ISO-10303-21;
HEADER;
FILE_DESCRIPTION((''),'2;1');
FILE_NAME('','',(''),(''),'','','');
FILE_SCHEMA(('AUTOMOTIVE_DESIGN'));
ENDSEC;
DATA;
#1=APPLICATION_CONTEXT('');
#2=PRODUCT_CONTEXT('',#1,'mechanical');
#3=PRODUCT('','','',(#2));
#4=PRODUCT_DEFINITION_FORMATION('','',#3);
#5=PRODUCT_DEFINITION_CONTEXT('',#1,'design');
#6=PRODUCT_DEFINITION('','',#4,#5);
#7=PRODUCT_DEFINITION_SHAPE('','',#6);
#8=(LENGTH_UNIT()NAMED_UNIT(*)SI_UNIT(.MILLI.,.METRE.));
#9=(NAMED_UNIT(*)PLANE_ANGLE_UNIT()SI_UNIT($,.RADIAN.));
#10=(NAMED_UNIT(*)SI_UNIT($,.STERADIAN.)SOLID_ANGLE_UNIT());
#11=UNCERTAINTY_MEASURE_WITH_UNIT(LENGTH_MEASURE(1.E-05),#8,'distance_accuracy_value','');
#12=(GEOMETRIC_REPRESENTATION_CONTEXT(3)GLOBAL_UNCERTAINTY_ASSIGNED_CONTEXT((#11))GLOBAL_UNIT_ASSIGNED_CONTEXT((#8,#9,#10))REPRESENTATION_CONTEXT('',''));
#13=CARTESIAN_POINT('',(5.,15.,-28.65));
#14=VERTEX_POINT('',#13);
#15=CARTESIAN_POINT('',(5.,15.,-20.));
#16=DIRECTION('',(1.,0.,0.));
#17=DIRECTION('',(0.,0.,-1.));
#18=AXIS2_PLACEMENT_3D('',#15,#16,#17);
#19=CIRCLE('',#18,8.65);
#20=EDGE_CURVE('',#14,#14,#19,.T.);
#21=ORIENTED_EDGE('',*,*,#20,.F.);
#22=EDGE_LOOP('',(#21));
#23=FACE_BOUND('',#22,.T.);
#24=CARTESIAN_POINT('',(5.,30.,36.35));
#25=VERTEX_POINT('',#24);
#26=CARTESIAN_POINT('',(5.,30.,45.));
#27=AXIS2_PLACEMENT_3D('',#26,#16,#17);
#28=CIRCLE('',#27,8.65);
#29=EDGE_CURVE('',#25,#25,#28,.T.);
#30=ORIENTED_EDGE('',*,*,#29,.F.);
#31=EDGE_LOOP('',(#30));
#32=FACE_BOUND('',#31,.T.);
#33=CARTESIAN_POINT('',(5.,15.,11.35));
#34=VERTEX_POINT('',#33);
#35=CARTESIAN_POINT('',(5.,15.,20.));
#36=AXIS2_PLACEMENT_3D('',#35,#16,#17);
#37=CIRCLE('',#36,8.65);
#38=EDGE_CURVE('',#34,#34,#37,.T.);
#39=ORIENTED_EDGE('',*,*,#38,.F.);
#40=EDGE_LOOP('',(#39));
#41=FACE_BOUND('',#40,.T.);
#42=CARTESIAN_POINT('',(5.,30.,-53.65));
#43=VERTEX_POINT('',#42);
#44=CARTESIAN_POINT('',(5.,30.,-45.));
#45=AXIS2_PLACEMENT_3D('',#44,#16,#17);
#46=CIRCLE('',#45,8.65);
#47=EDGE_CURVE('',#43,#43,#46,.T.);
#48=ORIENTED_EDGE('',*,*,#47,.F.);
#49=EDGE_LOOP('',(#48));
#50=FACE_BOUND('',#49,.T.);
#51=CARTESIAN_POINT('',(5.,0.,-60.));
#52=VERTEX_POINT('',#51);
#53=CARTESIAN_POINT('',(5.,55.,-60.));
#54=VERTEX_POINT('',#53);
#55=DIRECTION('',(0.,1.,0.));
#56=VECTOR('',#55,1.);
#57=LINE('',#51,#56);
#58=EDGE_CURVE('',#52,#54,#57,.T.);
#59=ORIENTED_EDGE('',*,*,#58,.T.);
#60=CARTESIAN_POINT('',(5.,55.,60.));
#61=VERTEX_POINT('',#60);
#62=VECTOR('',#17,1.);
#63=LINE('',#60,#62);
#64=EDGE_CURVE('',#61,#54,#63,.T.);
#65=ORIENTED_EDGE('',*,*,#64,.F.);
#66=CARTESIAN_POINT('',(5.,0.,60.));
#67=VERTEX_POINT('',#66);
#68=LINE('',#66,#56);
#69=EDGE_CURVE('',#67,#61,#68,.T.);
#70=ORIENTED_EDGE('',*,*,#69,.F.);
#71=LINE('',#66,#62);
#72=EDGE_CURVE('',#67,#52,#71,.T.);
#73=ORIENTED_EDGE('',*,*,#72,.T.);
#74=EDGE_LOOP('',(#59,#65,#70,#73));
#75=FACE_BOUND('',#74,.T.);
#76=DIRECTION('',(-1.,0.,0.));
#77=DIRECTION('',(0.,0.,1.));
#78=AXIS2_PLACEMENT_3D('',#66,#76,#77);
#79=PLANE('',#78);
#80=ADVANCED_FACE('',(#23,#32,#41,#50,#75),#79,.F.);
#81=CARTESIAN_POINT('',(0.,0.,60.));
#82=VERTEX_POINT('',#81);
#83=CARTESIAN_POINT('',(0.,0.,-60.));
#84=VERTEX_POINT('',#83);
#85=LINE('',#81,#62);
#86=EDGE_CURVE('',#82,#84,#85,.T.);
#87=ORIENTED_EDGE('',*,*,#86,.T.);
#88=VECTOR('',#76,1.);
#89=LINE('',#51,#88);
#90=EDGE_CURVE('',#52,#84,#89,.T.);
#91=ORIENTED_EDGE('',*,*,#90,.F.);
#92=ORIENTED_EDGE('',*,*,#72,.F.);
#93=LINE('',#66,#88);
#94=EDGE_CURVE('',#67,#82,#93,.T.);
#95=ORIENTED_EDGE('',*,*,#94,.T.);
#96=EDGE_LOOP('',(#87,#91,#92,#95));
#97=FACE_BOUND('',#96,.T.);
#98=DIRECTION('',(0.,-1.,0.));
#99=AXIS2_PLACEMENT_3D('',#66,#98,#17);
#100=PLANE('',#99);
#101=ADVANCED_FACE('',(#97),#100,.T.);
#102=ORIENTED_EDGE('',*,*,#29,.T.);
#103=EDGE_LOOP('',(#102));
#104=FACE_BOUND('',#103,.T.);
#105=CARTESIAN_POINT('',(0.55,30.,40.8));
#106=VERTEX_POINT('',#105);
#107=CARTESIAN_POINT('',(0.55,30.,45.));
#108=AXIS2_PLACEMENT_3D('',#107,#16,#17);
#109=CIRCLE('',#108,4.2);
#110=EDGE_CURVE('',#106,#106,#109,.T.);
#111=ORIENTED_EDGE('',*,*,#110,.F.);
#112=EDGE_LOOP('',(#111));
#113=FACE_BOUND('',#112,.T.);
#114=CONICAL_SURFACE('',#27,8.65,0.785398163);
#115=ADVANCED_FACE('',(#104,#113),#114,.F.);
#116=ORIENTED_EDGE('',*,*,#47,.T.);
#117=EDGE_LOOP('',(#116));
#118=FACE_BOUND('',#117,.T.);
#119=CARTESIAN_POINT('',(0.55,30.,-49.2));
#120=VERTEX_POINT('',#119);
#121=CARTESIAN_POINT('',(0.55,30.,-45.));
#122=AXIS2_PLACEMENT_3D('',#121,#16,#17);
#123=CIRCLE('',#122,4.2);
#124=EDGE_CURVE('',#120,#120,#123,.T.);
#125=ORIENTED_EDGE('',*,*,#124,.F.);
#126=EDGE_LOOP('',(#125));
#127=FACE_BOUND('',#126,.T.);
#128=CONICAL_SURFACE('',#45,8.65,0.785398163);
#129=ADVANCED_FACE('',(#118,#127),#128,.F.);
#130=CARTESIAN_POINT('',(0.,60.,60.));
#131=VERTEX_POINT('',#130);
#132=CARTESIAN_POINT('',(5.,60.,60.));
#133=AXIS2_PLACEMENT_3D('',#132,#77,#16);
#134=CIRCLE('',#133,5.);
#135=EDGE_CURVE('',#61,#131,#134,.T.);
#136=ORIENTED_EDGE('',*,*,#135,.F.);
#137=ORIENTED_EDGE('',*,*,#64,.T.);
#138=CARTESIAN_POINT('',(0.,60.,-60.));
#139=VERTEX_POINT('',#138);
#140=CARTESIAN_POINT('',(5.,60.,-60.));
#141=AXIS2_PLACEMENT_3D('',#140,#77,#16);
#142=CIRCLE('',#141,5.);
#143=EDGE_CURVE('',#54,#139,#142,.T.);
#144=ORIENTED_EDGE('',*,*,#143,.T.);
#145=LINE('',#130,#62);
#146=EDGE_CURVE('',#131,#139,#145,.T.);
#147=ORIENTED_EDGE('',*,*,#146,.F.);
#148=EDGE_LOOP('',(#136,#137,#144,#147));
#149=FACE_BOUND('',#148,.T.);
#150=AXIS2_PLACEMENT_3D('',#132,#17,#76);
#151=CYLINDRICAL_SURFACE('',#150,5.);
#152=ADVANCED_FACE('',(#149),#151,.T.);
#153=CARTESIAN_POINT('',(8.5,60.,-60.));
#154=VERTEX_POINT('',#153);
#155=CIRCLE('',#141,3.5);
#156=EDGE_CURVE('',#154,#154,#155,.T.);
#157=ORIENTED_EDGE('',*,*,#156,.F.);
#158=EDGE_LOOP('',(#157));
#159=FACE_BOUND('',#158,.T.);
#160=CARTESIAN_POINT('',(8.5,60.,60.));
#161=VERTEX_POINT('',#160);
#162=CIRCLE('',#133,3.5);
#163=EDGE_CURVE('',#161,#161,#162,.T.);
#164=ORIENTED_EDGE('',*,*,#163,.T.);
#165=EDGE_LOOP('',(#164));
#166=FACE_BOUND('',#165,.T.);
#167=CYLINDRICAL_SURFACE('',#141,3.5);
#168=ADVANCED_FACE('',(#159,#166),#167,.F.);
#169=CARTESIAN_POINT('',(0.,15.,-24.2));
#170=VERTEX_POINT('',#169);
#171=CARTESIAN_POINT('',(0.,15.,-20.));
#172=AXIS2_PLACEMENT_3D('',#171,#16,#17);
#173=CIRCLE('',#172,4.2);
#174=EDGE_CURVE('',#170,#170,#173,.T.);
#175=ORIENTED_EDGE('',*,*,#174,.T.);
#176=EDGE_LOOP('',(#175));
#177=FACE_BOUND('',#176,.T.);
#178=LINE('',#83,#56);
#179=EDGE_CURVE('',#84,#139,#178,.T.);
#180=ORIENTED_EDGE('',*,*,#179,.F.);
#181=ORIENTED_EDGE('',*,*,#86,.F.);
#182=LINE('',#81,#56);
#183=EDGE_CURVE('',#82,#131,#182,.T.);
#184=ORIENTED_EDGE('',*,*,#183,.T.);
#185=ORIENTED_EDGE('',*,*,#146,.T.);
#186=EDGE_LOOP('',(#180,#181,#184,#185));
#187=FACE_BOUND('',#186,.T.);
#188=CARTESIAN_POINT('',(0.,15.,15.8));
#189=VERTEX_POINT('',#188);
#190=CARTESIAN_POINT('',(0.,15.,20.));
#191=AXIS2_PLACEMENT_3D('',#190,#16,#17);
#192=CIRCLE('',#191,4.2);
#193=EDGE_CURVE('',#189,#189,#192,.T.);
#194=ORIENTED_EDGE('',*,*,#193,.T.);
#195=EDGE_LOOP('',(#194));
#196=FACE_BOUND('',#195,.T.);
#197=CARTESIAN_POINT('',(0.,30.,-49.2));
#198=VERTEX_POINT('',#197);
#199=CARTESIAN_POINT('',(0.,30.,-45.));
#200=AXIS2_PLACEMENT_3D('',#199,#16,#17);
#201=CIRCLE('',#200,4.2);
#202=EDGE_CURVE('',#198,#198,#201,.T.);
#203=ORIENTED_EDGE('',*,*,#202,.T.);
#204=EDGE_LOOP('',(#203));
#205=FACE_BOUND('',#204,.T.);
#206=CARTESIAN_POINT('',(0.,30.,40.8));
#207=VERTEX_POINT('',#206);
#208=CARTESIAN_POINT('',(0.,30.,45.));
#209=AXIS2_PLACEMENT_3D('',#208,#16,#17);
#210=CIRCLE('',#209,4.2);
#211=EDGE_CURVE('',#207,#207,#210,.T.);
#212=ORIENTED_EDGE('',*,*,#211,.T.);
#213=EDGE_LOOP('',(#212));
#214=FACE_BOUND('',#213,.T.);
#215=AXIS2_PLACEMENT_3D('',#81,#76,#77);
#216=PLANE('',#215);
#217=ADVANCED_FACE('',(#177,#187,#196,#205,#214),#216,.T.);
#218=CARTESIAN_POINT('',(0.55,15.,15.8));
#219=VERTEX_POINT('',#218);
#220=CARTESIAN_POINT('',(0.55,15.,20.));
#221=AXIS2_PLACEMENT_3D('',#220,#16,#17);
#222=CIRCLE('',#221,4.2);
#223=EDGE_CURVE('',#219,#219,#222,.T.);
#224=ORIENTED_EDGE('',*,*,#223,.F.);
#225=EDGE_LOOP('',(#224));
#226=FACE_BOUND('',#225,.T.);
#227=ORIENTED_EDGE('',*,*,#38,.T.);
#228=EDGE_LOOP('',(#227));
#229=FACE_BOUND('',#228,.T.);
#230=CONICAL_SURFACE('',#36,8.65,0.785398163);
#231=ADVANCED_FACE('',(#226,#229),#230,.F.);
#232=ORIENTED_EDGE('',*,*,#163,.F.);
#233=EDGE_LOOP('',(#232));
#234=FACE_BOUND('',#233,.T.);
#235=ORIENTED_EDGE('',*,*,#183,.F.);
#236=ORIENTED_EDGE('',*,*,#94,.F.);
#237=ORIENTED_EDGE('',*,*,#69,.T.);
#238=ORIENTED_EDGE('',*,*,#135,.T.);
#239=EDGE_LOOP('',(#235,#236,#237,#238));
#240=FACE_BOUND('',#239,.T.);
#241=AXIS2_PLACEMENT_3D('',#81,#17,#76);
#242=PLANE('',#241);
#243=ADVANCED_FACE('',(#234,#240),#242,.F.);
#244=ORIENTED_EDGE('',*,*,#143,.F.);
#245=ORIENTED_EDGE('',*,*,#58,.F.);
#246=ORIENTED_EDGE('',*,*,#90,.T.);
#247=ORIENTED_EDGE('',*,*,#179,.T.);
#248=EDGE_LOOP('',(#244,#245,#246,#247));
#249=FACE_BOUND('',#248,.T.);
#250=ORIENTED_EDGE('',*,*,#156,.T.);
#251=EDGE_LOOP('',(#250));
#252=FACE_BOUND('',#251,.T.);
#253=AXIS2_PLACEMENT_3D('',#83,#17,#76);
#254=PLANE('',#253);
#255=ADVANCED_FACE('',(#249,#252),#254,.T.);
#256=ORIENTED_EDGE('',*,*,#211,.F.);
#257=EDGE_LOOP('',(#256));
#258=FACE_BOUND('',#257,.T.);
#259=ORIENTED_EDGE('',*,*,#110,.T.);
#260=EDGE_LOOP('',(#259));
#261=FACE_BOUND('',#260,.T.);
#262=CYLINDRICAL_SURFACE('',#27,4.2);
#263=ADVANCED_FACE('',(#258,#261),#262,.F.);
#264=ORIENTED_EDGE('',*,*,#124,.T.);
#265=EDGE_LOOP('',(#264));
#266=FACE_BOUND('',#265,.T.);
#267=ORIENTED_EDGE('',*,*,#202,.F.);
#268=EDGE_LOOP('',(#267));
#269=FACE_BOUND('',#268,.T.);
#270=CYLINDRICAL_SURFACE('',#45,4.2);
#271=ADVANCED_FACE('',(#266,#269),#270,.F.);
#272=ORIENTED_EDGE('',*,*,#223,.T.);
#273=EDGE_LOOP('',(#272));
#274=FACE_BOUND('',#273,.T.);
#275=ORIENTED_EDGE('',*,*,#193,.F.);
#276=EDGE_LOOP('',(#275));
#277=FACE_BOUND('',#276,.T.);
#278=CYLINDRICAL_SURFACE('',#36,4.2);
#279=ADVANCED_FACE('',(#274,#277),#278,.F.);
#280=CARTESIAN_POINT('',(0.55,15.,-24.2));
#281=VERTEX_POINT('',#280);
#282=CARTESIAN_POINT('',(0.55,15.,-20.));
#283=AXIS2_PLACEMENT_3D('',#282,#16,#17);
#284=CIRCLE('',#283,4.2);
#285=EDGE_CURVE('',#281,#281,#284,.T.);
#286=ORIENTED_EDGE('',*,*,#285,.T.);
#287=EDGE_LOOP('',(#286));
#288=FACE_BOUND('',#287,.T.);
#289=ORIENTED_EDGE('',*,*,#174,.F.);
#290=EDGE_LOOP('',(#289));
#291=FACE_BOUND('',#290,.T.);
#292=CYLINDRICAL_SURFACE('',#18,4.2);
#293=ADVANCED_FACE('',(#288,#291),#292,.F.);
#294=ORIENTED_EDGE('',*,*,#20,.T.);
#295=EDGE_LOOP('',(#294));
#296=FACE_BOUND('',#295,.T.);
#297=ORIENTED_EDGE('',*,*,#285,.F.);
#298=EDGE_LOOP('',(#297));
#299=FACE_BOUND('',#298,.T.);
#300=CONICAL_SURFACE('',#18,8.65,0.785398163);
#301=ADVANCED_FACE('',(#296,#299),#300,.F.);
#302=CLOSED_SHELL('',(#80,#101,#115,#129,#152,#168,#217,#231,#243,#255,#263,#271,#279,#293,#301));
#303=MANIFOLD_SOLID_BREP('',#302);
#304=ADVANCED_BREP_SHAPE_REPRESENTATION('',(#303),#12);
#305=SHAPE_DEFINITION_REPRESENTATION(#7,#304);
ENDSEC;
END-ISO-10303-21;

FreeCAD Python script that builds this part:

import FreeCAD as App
import Part
import Sketcher

V = App.Vector
Q = App.Units.Quantity

doc = App.newDocument("Part")
body = doc.addObject("PartDesign::Body", "Body")

# Sketch on XY plane
sketch1 = body.newObject("Sketcher::SketchObject", "Sketch")
sketch1.AttachmentSupport = (doc.getObject("XY_Plane"), [""])
sketch1.MapMode = "FlatFace"
sketch1.addGeometry([
    Part.LineSegment(V(0, 60, 0), V(0, 0, 0)),
    Part.LineSegment(V(0, 0, 0), V(5, 0, 0)),
    Part.LineSegment(V(5, 0, 0), V(5, 60, 0)),
    Part.LineSegment(V(5, 60, 0), V(0, 60, 0)),
], False)
sketch1.addConstraint([
    Sketcher.Constraint("Coincident", 0, 2, 1, 1),
    Sketcher.Constraint("Coincident", 1, 2, 2, 1),
    Sketcher.Constraint("Coincident", 2, 2, 3, 1),
    Sketcher.Constraint("Coincident", 3, 2, 0, 1),
    Sketcher.Constraint("Vertical", 0),
    Sketcher.Constraint("Horizontal", 1),
    Sketcher.Constraint("Vertical", 2),
    Sketcher.Constraint("Horizontal", 3),
    Sketcher.Constraint("Coincident", 0, 2, -1, 1),
    Sketcher.Constraint("DistanceX", 1, 1, 1, 2, Q("5 mm")),
    Sketcher.Constraint("DistanceY", 0, 2, 0, 1, Q("60 mm")),
])
pad1 = body.newObject("PartDesign::Pad", "Pad")
pad1.Profile = sketch1
pad1.Length = 120
pad1.Midplane = True

# Sketch on XY plane
sketch2 = body.newObject("Sketcher::SketchObject", "Sketch001")
sketch2.AttachmentSupport = (doc.getObject("XY_Plane"), [""])
sketch2.MapMode = "FlatFace"
sketch2.AttachmentOffset = App.Placement(V(0, 0, 60), App.Rotation())
sketch2.addGeometry(Part.Circle(V(5, 60, 0), V(0, 0, 1), 5), False)
sketch2.addConstraint([
    Sketcher.Constraint("Diameter", 0, Q("10 mm")),
    Sketcher.Constraint("DistanceX", -1, 1, 0, 3, Q("5 mm")),
    Sketcher.Constraint("DistanceY", -1, 1, 0, 3, Q("60 mm")),
])

# Sketch on XZ plane
sketch3 = body.newObject("Sketcher::SketchObject", "Sketch002")
sketch3.AttachmentSupport = (doc.getObject("XZ_Plane"), [""])
sketch3.MapMode = "FlatFace"
sketch3.AttachmentOffset = App.Placement(V(0, 0, -60), App.Rotation())
sketch3.addGeometry(Part.LineSegment(V(5, 60, 0), V(5, -60, 0)), False)
sketch3.addConstraint([
    Sketcher.Constraint("Vertical", 0),
    Sketcher.Constraint("DistanceY", 0, 2, 0, 1, Q("120 mm")),
    Sketcher.Constraint("DistanceX", -1, 1, 0, 1, Q("5 mm")),
    Sketcher.Constraint("DistanceY", -1, 1, 0, 1, Q("60 mm")),
])
doc.recompute()

additivepipe = body.newObject("PartDesign::AdditivePipe", "AdditivePipe")
additivepipe.Profile = sketch2
additivepipe.Spine = (sketch3, ["Edge1"])

# Sketch on XY plane
sketch4 = body.newObject("Sketcher::SketchObject", "Sketch003")
sketch4.AttachmentSupport = (doc.getObject("XY_Plane"), [""])
sketch4.MapMode = "FlatFace"
sketch4.AttachmentOffset = App.Placement(V(0, 0, 60), App.Rotation())
sketch4.addGeometry(Part.Circle(V(5, 60, 0), V(0, 0, 1), 3.5), False)
sketch4.addConstraint([
    Sketcher.Constraint("Diameter", 0, Q("7 mm")),
    Sketcher.Constraint("DistanceX", -1, 1, 0, 3, Q("5 mm")),
    Sketcher.Constraint("DistanceY", -1, 1, 0, 3, Q("60 mm")),
])
pocket1 = body.newObject("PartDesign::Pocket", "Pocket")
pocket1.Profile = sketch4
pocket1.Type = "ThroughAll"

# Sketch on XZ plane
sketch5 = body.newObject("Sketcher::SketchObject", "Sketch004")
sketch5.AttachmentSupport = (doc.getObject("XZ_Plane"), [""])
sketch5.MapMode = "FlatFace"
sketch5.AttachmentOffset = App.Placement(V(0, 0, -15), App.Rotation())
sketch5.addGeometry([
    Part.LineSegment(V(0, 20, 0), V(5, 20, 0)),  # 0
    Part.LineSegment(V(5, 20, 0), V(5, 11.3, 0)),  # 1
    Part.LineSegment(V(5, 11.3, 0), V(0.6, 15.8, 0)),  # 2
    Part.LineSegment(V(0.6, 15.8, 0), V(0, 15.8, 0)),  # 3
    Part.LineSegment(V(0, 15.8, 0), V(0, 20, 0)),  # 4
], False)
sketch5.addGeometry(Part.LineSegment(V(5, 20, 0), V(0, 20, 0)), True)  # axis
sketch5.addConstraint([
    Sketcher.Constraint("Coincident", 0, 2, 1, 1),
    Sketcher.Constraint("Coincident", 1, 2, 2, 1),
    Sketcher.Constraint("Coincident", 2, 2, 3, 1),
    Sketcher.Constraint("Coincident", 3, 2, 4, 1),
    Sketcher.Constraint("Coincident", 4, 2, 0, 1),
    Sketcher.Constraint("Horizontal", 0),
    Sketcher.Constraint("Vertical", 1),
    Sketcher.Constraint("Horizontal", 3),
    Sketcher.Constraint("Vertical", 4),
    Sketcher.Constraint("Horizontal", 5),
    Sketcher.Constraint("Coincident", 5, 1, 0, 2),
    Sketcher.Constraint("PointOnObject", 3, 2, -2),
    Sketcher.Constraint("PointOnObject", 5, 2, -2),
    Sketcher.Constraint("DistanceX", 0, 1, 0, 2, Q("5 mm")),
    Sketcher.Constraint("Angle", 2, Q("135 deg")),
    Sketcher.Constraint("DistanceY", 4, 1, 4, 2, Q("4.2 mm")),
    Sketcher.Constraint("DistanceY", -1, 1, 0, 2, Q("20 mm")),
    Sketcher.Constraint("DistanceX", 3, 2, 3, 1, Q("0.55 mm")),
])
groove = body.newObject("PartDesign::Groove", "Groove")
groove.Profile = sketch5
groove.ReferenceAxis = (sketch5, ["Axis0"])
groove.Angle = 360
doc.recompute()

datumline = body.newObject("PartDesign::Line", "DatumLine")
datumline.Placement = App.Placement(V(0, 0, 0), App.Rotation(V(0, 0, 1), V(0, 0.514495755, 0.857492926)))
linearpattern = body.newObject("PartDesign::LinearPattern", "LinearPattern")
linearpattern.Originals = [groove]
linearpattern.Direction = (datumline, [""])
linearpattern.Mode = "offset"
linearpattern.Offset = 29.154759
linearpattern.Occurrences = 2
body.Tip = linearpattern
doc.recompute()

mirrored = body.newObject("PartDesign::Mirrored", "Mirrored")
mirrored.Originals = [groove]
mirrored.MirrorPlane = (doc.getObject("XY_Plane"), [""])
body.Tip = mirrored

# Sketch on XZ plane
sketch6 = body.newObject("Sketcher::SketchObject", "Sketch005")
sketch6.AttachmentSupport = (doc.getObject("XZ_Plane"), [""])
sketch6.MapMode = "FlatFace"
sketch6.AttachmentOffset = App.Placement(V(0, 0, -30), App.Rotation())
sketch6.addGeometry([
    Part.LineSegment(V(5, -45, 0), V(0, -45, 0)),  # 0
    Part.LineSegment(V(0, -45, 0), V(0, -40.8, 0)),  # 1
    Part.LineSegment(V(0, -40.8, 0), V(0.6, -40.8, 0)),  # 2
    Part.LineSegment(V(0.6, -40.8, 0), V(5, -36.4, 0)),  # 3
    Part.LineSegment(V(5, -36.4, 0), V(5, -45, 0)),  # 4
], False)
sketch6.addGeometry(Part.LineSegment(V(0, -45, 0), V(5, -45, 0)), True)  # axis
sketch6.addConstraint([
    Sketcher.Constraint("Coincident", 0, 2, 1, 1),
    Sketcher.Constraint("Coincident", 1, 2, 2, 1),
    Sketcher.Constraint("Coincident", 2, 2, 3, 1),
    Sketcher.Constraint("Coincident", 3, 2, 4, 1),
    Sketcher.Constraint("Coincident", 4, 2, 0, 1),
    Sketcher.Constraint("Horizontal", 0),
    Sketcher.Constraint("Vertical", 1),
    Sketcher.Constraint("Horizontal", 2),
    Sketcher.Constraint("Vertical", 4),
    Sketcher.Constraint("Horizontal", 5),
    Sketcher.Constraint("Coincident", 5, 1, 0, 2),
    Sketcher.Constraint("PointOnObject", 0, 2, -2),
    Sketcher.Constraint("Vertical", 3, 2, 5, 2),
    Sketcher.Constraint("DistanceX", 0, 2, 0, 1, Q("5 mm")),
    Sketcher.Constraint("Angle", 3, Q("45 deg")),
    Sketcher.Constraint("DistanceY", 1, 1, 1, 2, Q("4.2 mm")),
    Sketcher.Constraint("DistanceY", 0, 2, -1, 1, Q("45 mm")),
    Sketcher.Constraint("DistanceX", 2, 1, 2, 2, Q("0.55 mm")),
])
groove2 = body.newObject("PartDesign::Groove", "Groove001")
groove2.Profile = sketch6
groove2.ReferenceAxis = (sketch6, ["Axis0"])
groove2.Angle = 360

doc.recompute()
